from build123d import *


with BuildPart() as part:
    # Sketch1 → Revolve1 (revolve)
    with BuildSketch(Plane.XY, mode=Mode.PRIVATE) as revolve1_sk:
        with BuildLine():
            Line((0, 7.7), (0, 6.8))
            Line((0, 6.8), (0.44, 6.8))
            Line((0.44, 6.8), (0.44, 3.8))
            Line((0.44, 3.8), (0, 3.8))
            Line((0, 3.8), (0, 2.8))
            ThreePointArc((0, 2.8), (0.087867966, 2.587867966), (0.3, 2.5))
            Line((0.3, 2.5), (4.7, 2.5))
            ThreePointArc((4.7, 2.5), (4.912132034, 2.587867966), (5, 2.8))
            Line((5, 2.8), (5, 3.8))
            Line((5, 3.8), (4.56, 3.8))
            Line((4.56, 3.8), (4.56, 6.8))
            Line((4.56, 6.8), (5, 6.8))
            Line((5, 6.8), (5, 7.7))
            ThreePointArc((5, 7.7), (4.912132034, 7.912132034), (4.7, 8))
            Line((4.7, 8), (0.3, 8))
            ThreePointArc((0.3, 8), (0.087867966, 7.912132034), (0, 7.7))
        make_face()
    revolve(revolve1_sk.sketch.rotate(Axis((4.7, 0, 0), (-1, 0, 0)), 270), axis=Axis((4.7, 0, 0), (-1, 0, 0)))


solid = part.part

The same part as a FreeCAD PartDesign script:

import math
import FreeCAD as App
import Part
import Sketcher

V = App.Vector

doc = App.newDocument("Part")
body = doc.addObject("PartDesign::Body", "Body")

sketch1 = body.newObject("Sketcher::SketchObject", "Sketch")
sketch1.AttachmentSupport = (doc.getObject("XY_Plane"), [""])
sketch1.MapMode = "FlatFace"
sketch1.addGeometry([
    Part.LineSegment(V(0, 7.7, 0), V(0, 6.8, 0)),
    Part.LineSegment(V(0, 6.8, 0), V(0.44, 6.8, 0)),
    Part.LineSegment(V(0.44, 6.8, 0), V(0.44, 3.8, 0)),
    Part.LineSegment(V(0.44, 3.8, 0), V(0, 3.8, 0)),
    Part.LineSegment(V(0, 3.8, 0), V(0, 2.8, 0)),
    Part.ArcOfCircle(Part.Circle(V(0.3, 2.8, 0), V(0, 0, 1), 0.3), math.radians(-180), math.radians(-90)),
    Part.LineSegment(V(0.3, 2.5, 0), V(4.7, 2.5, 0)),
    Part.ArcOfCircle(Part.Circle(V(4.7, 2.8, 0), V(0, 0, 1), 0.3), math.radians(-90), math.radians(0)),
    Part.LineSegment(V(5, 2.8, 0), V(5, 3.8, 0)),
    Part.LineSegment(V(5, 3.8, 0), V(4.56, 3.8, 0)),
    Part.LineSegment(V(4.56, 3.8, 0), V(4.56, 6.8, 0)),
    Part.LineSegment(V(4.56, 6.8, 0), V(5, 6.8, 0)),
    Part.LineSegment(V(5, 6.8, 0), V(5, 7.7, 0)),
    Part.ArcOfCircle(Part.Circle(V(4.7, 7.7, 0), V(0, 0, 1), 0.3), math.radians(0), math.radians(90)),
    Part.LineSegment(V(4.7, 8, 0), V(0.3, 8, 0)),
    Part.ArcOfCircle(Part.Circle(V(0.3, 7.7, 0), V(0, 0, 1), 0.3), math.radians(90), math.radians(180)),
], False)
sketch1.addConstraint([
    Sketcher.Constraint("Coincident", 0, 2, 1, 1),
    Sketcher.Constraint("Coincident", 1, 2, 2, 1),
    Sketcher.Constraint("Coincident", 2, 2, 3, 1),
    Sketcher.Constraint("Coincident", 3, 2, 4, 1),
    Sketcher.Constraint("Tangent", 4, 2, 5, 1),
    Sketcher.Constraint("Tangent", 5, 2, 6, 1),
    Sketcher.Constraint("Tangent", 6, 2, 7, 1),
    Sketcher.Constraint("Tangent", 7, 2, 8, 1),
    Sketcher.Constraint("Coincident", 8, 2, 9, 1),
    Sketcher.Constraint("Coincident", 9, 2, 10, 1),
    Sketcher.Constraint("Coincident", 10, 2, 11, 1),
    Sketcher.Constraint("Coincident", 11, 2, 12, 1),
    Sketcher.Constraint("Tangent", 12, 2, 13, 1),
    Sketcher.Constraint("Tangent", 13, 2, 14, 1),
    Sketcher.Constraint("Tangent", 14, 2, 15, 1),
    Sketcher.Constraint("Tangent", 15, 2, 0, 1),
    Sketcher.Constraint("Vertical", 0),
    Sketcher.Constraint("Horizontal", 1),
    Sketcher.Constraint("Vertical", 2),
    Sketcher.Constraint("Horizontal", 3),
    Sketcher.Constraint("Vertical", 4),
    Sketcher.Constraint("Horizontal", 6),
    Sketcher.Constraint("Vertical", 8),
    Sketcher.Constraint("Horizontal", 9),
    Sketcher.Constraint("Vertical", 10),
    Sketcher.Constraint("Horizontal", 11),
    Sketcher.Constraint("Vertical", 12),
    Sketcher.Constraint("Horizontal", 14),
    Sketcher.Constraint("Equal", 5, 7),
    Sketcher.Constraint("Equal", 7, 13),
    Sketcher.Constraint("Equal", 13, 15),
    Sketcher.Constraint("PointOnObject", 0, 2, -2),
    Sketcher.Constraint("PointOnObject", 3, 2, -2),
    Sketcher.Constraint("Horizontal", 3, 2, 8, 2),
    Sketcher.Constraint("Horizontal", 1, 2, 10, 2),
    Sketcher.Constraint("Vertical", 7, 3, 13, 3),
    Sketcher.Constraint("Equal", 3, 9),
    Sketcher.Constraint("Radius", 5, 0.3),
    Sketcher.Constraint("DistanceY", 2, 2, 2, 1, 3.0),
    Sketcher.Constraint("DistanceY", 4, 2, 4, 1, 1.0),
    Sketcher.Constraint("DistanceX", 6, 1, 6, 2, 4.4),
    Sketcher.Constraint("DistanceY", 0, 2, 0, 1, 0.9),
    Sketcher.Constraint("DistanceY", -1, 1, 13, 2, 8.0),
    Sketcher.Constraint("DistanceX", 1, 1, 1, 2, 0.44),
])
revolution = body.newObject("PartDesign::Revolution", "Revolution")
revolution.Profile = sketch1
revolution.ReferenceAxis = (sketch1, ["H_Axis"])
revolution.Angle = 360

doc.recompute()
